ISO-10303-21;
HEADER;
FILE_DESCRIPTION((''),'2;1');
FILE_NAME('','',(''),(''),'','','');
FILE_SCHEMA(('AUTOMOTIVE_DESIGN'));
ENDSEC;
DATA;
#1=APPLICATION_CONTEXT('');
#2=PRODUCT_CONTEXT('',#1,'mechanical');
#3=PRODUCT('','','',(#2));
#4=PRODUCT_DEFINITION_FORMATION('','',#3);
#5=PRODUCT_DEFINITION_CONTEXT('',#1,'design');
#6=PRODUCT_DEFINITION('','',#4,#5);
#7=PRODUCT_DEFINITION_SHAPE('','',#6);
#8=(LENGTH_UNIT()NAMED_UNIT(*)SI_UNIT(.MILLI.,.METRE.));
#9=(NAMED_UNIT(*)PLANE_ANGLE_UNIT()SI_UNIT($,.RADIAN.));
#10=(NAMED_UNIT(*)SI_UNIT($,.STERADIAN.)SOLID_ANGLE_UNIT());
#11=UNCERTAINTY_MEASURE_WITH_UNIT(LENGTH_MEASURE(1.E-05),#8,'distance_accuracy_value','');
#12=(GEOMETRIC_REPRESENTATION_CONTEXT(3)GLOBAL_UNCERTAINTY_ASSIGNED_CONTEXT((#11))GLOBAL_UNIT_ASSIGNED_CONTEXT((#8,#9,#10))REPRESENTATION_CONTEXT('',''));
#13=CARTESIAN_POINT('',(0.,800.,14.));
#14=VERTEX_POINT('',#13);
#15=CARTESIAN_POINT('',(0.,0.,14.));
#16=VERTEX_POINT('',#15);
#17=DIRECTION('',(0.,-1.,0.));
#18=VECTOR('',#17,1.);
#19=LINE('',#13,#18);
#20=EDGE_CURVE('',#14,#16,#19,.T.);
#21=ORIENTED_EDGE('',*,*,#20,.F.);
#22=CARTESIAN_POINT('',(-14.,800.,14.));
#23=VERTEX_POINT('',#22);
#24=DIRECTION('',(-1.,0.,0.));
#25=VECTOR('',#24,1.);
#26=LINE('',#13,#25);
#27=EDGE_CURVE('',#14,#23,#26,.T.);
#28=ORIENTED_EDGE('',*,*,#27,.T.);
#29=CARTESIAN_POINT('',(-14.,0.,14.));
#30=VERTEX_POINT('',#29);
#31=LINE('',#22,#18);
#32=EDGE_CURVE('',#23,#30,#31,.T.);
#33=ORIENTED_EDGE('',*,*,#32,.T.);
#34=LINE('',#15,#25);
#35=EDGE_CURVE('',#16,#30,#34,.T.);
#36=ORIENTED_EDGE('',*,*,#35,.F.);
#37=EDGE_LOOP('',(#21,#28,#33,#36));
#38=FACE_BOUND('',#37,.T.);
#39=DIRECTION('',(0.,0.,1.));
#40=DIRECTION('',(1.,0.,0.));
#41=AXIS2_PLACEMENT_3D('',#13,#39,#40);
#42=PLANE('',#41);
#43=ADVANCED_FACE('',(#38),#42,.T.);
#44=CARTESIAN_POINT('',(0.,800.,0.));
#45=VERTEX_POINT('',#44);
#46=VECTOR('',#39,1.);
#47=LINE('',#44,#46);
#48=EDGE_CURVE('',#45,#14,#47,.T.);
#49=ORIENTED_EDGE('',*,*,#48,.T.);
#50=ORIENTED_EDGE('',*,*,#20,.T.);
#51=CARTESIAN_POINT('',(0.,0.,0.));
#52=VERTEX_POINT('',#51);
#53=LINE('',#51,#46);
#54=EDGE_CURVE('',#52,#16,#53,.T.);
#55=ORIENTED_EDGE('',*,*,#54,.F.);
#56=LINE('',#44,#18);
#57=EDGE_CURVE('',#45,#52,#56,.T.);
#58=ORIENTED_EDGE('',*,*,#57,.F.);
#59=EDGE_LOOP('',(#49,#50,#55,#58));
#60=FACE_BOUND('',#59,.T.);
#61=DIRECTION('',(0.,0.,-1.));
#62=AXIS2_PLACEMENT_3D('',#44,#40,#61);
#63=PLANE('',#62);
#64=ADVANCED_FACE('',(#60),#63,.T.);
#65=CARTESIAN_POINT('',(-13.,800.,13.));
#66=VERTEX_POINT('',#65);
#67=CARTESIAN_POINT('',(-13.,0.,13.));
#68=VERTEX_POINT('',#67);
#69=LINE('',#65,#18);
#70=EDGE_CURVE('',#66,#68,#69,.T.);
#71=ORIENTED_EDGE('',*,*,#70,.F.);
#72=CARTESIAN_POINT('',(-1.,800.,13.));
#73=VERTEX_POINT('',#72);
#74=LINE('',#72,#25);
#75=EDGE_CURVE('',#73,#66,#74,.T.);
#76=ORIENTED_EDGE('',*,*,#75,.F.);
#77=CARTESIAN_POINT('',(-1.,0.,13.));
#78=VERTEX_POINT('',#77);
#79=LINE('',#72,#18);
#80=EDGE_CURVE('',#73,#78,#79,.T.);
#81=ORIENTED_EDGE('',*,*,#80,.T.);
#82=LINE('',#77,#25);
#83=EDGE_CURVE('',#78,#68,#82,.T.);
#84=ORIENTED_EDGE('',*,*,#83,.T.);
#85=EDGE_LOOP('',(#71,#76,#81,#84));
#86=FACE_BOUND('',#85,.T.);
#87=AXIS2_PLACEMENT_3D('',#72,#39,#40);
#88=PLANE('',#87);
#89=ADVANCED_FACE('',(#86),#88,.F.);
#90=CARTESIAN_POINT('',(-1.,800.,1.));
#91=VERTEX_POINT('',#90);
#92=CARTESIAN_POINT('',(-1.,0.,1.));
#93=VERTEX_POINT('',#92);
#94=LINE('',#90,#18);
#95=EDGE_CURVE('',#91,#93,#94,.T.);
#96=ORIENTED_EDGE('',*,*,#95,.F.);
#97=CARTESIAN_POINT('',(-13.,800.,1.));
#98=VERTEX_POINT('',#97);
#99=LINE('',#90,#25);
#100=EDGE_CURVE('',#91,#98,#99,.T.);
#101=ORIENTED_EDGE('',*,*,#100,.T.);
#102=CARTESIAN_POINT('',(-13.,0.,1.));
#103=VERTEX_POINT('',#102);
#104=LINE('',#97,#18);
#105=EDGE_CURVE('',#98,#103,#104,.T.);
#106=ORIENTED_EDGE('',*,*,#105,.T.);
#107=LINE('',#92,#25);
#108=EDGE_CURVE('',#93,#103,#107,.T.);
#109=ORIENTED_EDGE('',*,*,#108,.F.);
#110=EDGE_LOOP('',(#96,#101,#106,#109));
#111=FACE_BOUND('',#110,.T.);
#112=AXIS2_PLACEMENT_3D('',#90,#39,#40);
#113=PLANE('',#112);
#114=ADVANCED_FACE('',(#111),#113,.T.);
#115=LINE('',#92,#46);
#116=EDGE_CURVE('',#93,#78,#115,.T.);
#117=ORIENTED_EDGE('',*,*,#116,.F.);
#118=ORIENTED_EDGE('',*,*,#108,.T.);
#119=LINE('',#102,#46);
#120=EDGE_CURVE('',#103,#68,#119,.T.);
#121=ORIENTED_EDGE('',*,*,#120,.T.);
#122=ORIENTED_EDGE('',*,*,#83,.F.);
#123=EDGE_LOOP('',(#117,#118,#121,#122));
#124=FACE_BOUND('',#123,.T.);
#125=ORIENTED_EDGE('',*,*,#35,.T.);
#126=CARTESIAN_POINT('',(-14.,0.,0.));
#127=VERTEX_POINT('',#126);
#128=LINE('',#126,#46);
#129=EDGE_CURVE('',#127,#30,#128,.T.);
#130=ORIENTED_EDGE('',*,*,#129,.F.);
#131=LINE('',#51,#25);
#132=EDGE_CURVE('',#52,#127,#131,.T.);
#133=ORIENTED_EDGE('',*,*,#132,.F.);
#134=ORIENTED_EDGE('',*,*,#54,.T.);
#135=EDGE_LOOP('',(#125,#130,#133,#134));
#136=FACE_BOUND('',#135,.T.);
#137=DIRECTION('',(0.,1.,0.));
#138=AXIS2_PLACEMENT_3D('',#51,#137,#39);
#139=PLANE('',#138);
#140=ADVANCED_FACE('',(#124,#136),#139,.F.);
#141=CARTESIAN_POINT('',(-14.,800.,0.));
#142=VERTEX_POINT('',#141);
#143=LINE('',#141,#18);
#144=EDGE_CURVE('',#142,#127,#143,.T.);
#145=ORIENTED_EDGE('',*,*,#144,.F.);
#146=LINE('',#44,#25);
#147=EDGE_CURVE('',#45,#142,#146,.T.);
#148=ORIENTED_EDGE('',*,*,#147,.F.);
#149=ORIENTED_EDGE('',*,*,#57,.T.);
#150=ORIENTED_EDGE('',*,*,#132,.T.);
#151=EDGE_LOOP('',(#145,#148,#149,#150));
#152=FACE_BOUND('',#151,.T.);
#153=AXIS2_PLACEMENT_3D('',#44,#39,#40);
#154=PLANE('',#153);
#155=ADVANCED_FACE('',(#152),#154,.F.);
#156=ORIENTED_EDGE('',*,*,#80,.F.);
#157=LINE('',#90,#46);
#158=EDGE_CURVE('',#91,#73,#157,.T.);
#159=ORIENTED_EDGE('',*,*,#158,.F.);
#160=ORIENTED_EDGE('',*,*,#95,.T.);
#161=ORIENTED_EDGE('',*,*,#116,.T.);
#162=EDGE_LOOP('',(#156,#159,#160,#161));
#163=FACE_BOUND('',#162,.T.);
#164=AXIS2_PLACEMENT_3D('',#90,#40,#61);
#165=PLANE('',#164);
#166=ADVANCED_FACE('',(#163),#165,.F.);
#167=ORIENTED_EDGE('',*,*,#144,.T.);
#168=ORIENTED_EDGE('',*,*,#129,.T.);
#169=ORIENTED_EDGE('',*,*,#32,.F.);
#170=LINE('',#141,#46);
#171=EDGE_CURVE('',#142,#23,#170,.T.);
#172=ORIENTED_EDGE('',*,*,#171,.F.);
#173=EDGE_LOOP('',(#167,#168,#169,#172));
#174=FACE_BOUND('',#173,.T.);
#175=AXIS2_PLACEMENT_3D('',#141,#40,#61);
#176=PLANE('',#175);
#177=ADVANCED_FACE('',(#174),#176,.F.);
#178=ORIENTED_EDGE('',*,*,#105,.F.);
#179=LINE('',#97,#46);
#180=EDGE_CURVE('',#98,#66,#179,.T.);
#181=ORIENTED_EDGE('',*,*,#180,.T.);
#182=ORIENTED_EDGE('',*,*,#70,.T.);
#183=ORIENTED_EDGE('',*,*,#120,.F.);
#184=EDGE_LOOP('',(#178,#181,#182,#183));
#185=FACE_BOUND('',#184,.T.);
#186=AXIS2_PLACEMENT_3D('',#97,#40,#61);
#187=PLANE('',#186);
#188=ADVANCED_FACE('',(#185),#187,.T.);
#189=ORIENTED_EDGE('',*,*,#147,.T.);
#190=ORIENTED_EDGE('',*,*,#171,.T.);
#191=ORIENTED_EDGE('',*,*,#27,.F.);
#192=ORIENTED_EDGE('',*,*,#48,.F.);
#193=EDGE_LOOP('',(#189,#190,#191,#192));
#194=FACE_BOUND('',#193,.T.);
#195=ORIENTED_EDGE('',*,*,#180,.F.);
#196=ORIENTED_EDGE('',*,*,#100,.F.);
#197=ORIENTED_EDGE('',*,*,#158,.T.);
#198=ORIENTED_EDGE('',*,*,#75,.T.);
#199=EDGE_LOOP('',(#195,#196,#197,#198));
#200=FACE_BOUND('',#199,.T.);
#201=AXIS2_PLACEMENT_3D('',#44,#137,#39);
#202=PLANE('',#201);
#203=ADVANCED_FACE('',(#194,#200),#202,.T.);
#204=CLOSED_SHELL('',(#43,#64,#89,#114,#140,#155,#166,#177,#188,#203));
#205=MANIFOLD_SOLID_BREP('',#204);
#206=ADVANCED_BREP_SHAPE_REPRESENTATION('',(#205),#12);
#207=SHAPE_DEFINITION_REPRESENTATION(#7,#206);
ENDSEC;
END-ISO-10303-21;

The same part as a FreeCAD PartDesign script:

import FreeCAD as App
import Part
import Sketcher

V = App.Vector
Q = App.Units.Quantity


def add_polygon(sketch, points):
    """Adds a closed chain of lines whose ends are joined by coincident constraints."""
    first, n = sketch.GeometryCount, len(points)
    for a, b in zip(points, points[1:] + points[:1]):
        sketch.addGeometry(Part.LineSegment(App.Vector(*a, 0), App.Vector(*b, 0)), False)
    for i in range(n):
        sketch.addConstraint(Sketcher.Constraint("Coincident", first + i, 2, first + (i + 1) % n, 1))

doc = App.newDocument("Part")
params = doc.addObject("Spreadsheet::Sheet", "Params")
for row, (alias, value) in enumerate([
    ("sketch1_width", "14 mm"),
    ("sketch1_width2", "12 mm"),
    ("pad1_length", "800 mm"),
], start=1):
    params.set(f"A{row}", alias)
    params.set(f"B{row}", "=" + value)
    params.setAlias(f"B{row}", alias)

body = doc.addObject("PartDesign::Body", "Body")

sketch1 = body.newObject("Sketcher::SketchObject", "Sketch")
sketch1.AttachmentSupport = (doc.getObject("XZ_Plane"), [""])
sketch1.MapMode = "FlatFace"
add_polygon(sketch1, [(-14, 0), (-14, 14), (0, 14), (0, 0)])
add_polygon(sketch1, [(-1, 13), (-13, 13), (-13, 1), (-1, 1)])
sketch1.addConstraint([
    Sketcher.Constraint("Vertical", 0),
    Sketcher.Constraint("Horizontal", 1),
    Sketcher.Constraint("Vertical", 2),
    Sketcher.Constraint("Horizontal", 3),
    Sketcher.Constraint("Horizontal", 4),
    Sketcher.Constraint("Vertical", 5),
    Sketcher.Constraint("Horizontal", 6),
    Sketcher.Constraint("Vertical", 7),
    Sketcher.Constraint("Coincident", 2, 2, -1, 1),
    Sketcher.Constraint("Equal", 3, 0),
    Sketcher.Constraint("Equal", 6, 5),
    Sketcher.Constraint("DistanceX", 1, 1, 1, 2, Q("14 mm")),
    Sketcher.Constraint("DistanceX", 4, 2, 4, 1, Q("12 mm")),
    Sketcher.Constraint("DistanceX", 4, 2, -1, 1, Q("13 mm")),
    Sketcher.Constraint("DistanceY", -1, 1, 4, 2, Q("13 mm")),
])
sketch1.setExpression("Constraints[19]", "Params.sketch1_width")
sketch1.setExpression("Constraints[20]", "Params.sketch1_width2")
pad1 = body.newObject("PartDesign::Pad", "Pad")
pad1.Profile = sketch1
pad1.setExpression("Length", "Params.pad1_length")
pad1.Reversed = True

doc.recompute()
